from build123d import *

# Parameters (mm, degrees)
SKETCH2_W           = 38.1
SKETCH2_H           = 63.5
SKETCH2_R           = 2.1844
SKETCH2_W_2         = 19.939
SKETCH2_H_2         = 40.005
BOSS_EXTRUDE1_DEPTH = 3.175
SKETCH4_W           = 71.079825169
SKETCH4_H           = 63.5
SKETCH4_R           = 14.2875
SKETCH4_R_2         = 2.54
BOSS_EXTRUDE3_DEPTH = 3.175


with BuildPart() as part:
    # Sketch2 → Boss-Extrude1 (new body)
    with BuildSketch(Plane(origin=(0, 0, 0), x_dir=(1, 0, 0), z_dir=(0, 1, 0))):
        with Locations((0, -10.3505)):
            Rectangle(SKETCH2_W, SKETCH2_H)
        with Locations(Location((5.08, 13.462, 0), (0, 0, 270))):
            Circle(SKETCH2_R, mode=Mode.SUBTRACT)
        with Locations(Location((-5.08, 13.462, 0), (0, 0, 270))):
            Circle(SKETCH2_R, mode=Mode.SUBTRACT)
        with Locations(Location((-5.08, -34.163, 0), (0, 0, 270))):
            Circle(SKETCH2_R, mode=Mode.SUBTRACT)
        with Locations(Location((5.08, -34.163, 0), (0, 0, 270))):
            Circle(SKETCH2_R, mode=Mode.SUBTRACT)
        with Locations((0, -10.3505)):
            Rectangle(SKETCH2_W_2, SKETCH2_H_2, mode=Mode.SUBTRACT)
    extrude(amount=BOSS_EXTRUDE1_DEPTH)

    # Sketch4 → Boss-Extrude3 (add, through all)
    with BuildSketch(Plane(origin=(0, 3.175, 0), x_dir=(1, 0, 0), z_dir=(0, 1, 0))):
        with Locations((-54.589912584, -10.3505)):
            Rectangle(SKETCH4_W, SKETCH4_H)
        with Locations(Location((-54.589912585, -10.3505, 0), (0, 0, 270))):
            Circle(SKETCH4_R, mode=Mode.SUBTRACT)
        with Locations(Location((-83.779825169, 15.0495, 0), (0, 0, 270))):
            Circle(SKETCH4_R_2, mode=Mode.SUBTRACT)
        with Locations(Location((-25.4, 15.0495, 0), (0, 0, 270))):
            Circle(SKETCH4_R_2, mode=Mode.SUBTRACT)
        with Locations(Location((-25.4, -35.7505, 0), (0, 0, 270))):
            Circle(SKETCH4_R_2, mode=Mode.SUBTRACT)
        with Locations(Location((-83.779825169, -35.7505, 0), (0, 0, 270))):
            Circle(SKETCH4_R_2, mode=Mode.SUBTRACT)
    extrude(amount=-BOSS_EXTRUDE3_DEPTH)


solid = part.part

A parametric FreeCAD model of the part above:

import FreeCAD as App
import Part
import Sketcher
Q = App.Units.Quantity


def add_polygon(sketch, points):
    """Adds a closed chain of lines whose ends are joined by coincident constraints."""
    first, n = sketch.GeometryCount, len(points)
    for a, b in zip(points, points[1:] + points[:1]):
        sketch.addGeometry(Part.LineSegment(App.Vector(*a, 0), App.Vector(*b, 0)), False)
    for i in range(n):
        sketch.addConstraint(Sketcher.Constraint("Coincident", first + i, 2, first + (i + 1) % n, 1))

doc = App.newDocument("Part")
body = doc.addObject("PartDesign::Body", "Body")

sketch1 = doc.addObject("Sketcher::SketchObject", "Sketch")
body.addObject(sketch1)
sketch1.AttachmentSupport = (doc.XZ_Plane, [""])
sketch1.MapMode = "FlatFace"
add_polygon(sketch1, [(-19.1, -21.4), (-19.1, 42.1), (19.1, 42.1), (19.1, -21.4)])
sketch1.addGeometry(Part.Circle(App.Vector(-5.1, 34.2, 0), App.Vector(0, 0, 1), 2.2), False)
sketch1.addGeometry(Part.Circle(App.Vector(5.1, 34.2, 0), App.Vector(0, 0, 1), 2.2), False)
sketch1.addGeometry(Part.Circle(App.Vector(-5.1, -13.5, 0), App.Vector(0, 0, 1), 2.2), False)
add_polygon(sketch1, [(10, 30.4), (-10, 30.4), (-10, -9.7), (10, -9.7)])
sketch1.addGeometry(Part.Circle(App.Vector(5.1, -13.5, 0), App.Vector(0, 0, 1), 2.2), False)
sketch1.addConstraint(Sketcher.Constraint("Vertical", 0))
sketch1.addConstraint(Sketcher.Constraint("Horizontal", 1))
sketch1.addConstraint(Sketcher.Constraint("Vertical", 2))
sketch1.addConstraint(Sketcher.Constraint("Horizontal", 3))
sketch1.addConstraint(Sketcher.Constraint("Horizontal", 7))
sketch1.addConstraint(Sketcher.Constraint("Vertical", 8))
sketch1.addConstraint(Sketcher.Constraint("Horizontal", 9))
sketch1.addConstraint(Sketcher.Constraint("Vertical", 10))
sketch1.addConstraint(Sketcher.Constraint("Equal", 4, 5))
sketch1.addConstraint(Sketcher.Constraint("Equal", 5, 6))
sketch1.addConstraint(Sketcher.Constraint("Equal", 6, 11))
sketch1.addConstraint(Sketcher.Constraint("Symmetric", 4, 3, 5, 3, -2))
sketch1.addConstraint(Sketcher.Constraint("Symmetric", 6, 3, 11, 3, -2))
sketch1.addConstraint(Sketcher.Constraint("Vertical", 4, 3, 6, 3))
sketch1.addConstraint(Sketcher.Constraint("Diameter", 4, Q("0.172 in")))
sketch1.addConstraint(Sketcher.Constraint("DistanceX", 1, 1, 1, 2, Q("1.5 in")))
sketch1.addConstraint(Sketcher.Constraint("DistanceY", 0, 1, 0, 2, Q("2.5 in")))
sketch1.addConstraint(Sketcher.Constraint("DistanceX", 4, 3, -1, 1, Q("0.2 in")))
sketch1.addConstraint(Sketcher.Constraint("DistanceX", 7, 2, 7, 1, Q("0.785 in")))
sketch1.addConstraint(Sketcher.Constraint("DistanceY", 8, 2, 8, 1, Q("1.575 in")))
sketch1.addConstraint(Sketcher.Constraint("DistanceY", 6, 3, -1, 1, Q("0.53 in")))
sketch1.addConstraint(Sketcher.Constraint("DistanceX", 0, 2, -1, 1, Q("0.75 in")))
sketch1.addConstraint(Sketcher.Constraint("DistanceY", 8, 2, -1, 1, Q("0.38 in")))
sketch1.addConstraint(Sketcher.Constraint("DistanceY", 7, 2, 4, 3, Q("0.15 in")))
sketch1.addConstraint(Sketcher.Constraint("DistanceY", 4, 3, 0, 2, Q("0.3125 in")))
sketch1.addConstraint(Sketcher.Constraint("DistanceX", 7, 2, -1, 1, Q("0.3925 in")))
pad1 = doc.addObject("PartDesign::Pad", "Pad")
body.addObject(pad1)
pad1.Profile = sketch1
pad1.Length = Q("0.125 in")
pad1.Reversed = True

sketch2 = doc.addObject("Sketcher::SketchObject", "Sketch001")
body.addObject(sketch2)
sketch2.AttachmentSupport = (doc.XZ_Plane, [""])
sketch2.MapMode = "FlatFace"
sketch2.AttachmentOffset = App.Placement(App.Vector(0, 0, -0.125 * 25.4), App.Rotation())
add_polygon(sketch2, [(-90.1, -21.4), (-90.1, 42.1), (-19, 42.1), (-19, -21.4)])
sketch2.addGeometry(Part.Circle(App.Vector(-83.8, 35.8, 0), App.Vector(0, 0, 1), 2.5), False)
sketch2.addGeometry(Part.Circle(App.Vector(-25.4, 35.8, 0), App.Vector(0, 0, 1), 2.5), False)
sketch2.addGeometry(Part.Circle(App.Vector(-54.6, 10.4, 0), App.Vector(0, 0, 1), 14.3), False)
sketch2.addGeometry(Part.Circle(App.Vector(-83.8, -15, 0), App.Vector(0, 0, 1), 2.5), False)
sketch2.addGeometry(Part.Circle(App.Vector(-25.4, -15, 0), App.Vector(0, 0, 1), 2.5), False)
sketch2.addConstraint(Sketcher.Constraint("Vertical", 0))
sketch2.addConstraint(Sketcher.Constraint("Horizontal", 1))
sketch2.addConstraint(Sketcher.Constraint("Vertical", 2))
sketch2.addConstraint(Sketcher.Constraint("Horizontal", 3))
sketch2.addConstraint(Sketcher.Constraint("Equal", 4, 5))
sketch2.addConstraint(Sketcher.Constraint("Equal", 5, 7))
sketch2.addConstraint(Sketcher.Constraint("Equal", 7, 8))
sketch2.addConstraint(Sketcher.Constraint("Horizontal", 4, 3, 5, 3))
sketch2.addConstraint(Sketcher.Constraint("Horizontal", 7, 3, 8, 3))
sketch2.addConstraint(Sketcher.Constraint("Vertical", 4, 3, 7, 3))
sketch2.addConstraint(Sketcher.Constraint("Vertical", 5, 3, 8, 3))
sketch2.addConstraint(Sketcher.Constraint("Diameter", 4, Q("0.2 in")))
sketch2.addConstraint(Sketcher.Constraint("Diameter", 6, Q("1.125 in")))
sketch2.addConstraint(Sketcher.Constraint("DistanceY", 0, 1, 0, 2, Q("2.5 in")))
sketch2.addConstraint(Sketcher.Constraint("DistanceX", 5, 3, -1, 1, Q("1 in")))
sketch2.addConstraint(Sketcher.Constraint("DistanceY", 6, 3, 4, 3, Q("1 in")))
sketch2.addConstraint(Sketcher.Constraint("DistanceY", 7, 3, 6, 3, Q("1 in")))
sketch2.addConstraint(Sketcher.Constraint("DistanceX", 1, 2, -1, 1, Q("0.75 in")))
sketch2.addConstraint(Sketcher.Constraint("DistanceX", 0, 2, 4, 3, Q("0.25 in")))
sketch2.addConstraint(Sketcher.Constraint("DistanceY", 4, 3, 0, 2, Q("0.25 in")))
sketch2.addConstraint(Sketcher.Constraint("DistanceY", -1, 1, 4, 3, Q("1.4075 in")))
sketch2.addConstraint(Sketcher.Constraint("DistanceX", 1, 1, 1, 2, 71.079825))
sketch2.addConstraint(Sketcher.Constraint("DistanceX", 6, 3, -1, 1, 54.589913))
pad2 = doc.addObject("PartDesign::Pad", "Pad001")
body.addObject(pad2)
pad2.Profile = sketch2
pad2.Length = Q("0.125 in")

doc.recompute()
